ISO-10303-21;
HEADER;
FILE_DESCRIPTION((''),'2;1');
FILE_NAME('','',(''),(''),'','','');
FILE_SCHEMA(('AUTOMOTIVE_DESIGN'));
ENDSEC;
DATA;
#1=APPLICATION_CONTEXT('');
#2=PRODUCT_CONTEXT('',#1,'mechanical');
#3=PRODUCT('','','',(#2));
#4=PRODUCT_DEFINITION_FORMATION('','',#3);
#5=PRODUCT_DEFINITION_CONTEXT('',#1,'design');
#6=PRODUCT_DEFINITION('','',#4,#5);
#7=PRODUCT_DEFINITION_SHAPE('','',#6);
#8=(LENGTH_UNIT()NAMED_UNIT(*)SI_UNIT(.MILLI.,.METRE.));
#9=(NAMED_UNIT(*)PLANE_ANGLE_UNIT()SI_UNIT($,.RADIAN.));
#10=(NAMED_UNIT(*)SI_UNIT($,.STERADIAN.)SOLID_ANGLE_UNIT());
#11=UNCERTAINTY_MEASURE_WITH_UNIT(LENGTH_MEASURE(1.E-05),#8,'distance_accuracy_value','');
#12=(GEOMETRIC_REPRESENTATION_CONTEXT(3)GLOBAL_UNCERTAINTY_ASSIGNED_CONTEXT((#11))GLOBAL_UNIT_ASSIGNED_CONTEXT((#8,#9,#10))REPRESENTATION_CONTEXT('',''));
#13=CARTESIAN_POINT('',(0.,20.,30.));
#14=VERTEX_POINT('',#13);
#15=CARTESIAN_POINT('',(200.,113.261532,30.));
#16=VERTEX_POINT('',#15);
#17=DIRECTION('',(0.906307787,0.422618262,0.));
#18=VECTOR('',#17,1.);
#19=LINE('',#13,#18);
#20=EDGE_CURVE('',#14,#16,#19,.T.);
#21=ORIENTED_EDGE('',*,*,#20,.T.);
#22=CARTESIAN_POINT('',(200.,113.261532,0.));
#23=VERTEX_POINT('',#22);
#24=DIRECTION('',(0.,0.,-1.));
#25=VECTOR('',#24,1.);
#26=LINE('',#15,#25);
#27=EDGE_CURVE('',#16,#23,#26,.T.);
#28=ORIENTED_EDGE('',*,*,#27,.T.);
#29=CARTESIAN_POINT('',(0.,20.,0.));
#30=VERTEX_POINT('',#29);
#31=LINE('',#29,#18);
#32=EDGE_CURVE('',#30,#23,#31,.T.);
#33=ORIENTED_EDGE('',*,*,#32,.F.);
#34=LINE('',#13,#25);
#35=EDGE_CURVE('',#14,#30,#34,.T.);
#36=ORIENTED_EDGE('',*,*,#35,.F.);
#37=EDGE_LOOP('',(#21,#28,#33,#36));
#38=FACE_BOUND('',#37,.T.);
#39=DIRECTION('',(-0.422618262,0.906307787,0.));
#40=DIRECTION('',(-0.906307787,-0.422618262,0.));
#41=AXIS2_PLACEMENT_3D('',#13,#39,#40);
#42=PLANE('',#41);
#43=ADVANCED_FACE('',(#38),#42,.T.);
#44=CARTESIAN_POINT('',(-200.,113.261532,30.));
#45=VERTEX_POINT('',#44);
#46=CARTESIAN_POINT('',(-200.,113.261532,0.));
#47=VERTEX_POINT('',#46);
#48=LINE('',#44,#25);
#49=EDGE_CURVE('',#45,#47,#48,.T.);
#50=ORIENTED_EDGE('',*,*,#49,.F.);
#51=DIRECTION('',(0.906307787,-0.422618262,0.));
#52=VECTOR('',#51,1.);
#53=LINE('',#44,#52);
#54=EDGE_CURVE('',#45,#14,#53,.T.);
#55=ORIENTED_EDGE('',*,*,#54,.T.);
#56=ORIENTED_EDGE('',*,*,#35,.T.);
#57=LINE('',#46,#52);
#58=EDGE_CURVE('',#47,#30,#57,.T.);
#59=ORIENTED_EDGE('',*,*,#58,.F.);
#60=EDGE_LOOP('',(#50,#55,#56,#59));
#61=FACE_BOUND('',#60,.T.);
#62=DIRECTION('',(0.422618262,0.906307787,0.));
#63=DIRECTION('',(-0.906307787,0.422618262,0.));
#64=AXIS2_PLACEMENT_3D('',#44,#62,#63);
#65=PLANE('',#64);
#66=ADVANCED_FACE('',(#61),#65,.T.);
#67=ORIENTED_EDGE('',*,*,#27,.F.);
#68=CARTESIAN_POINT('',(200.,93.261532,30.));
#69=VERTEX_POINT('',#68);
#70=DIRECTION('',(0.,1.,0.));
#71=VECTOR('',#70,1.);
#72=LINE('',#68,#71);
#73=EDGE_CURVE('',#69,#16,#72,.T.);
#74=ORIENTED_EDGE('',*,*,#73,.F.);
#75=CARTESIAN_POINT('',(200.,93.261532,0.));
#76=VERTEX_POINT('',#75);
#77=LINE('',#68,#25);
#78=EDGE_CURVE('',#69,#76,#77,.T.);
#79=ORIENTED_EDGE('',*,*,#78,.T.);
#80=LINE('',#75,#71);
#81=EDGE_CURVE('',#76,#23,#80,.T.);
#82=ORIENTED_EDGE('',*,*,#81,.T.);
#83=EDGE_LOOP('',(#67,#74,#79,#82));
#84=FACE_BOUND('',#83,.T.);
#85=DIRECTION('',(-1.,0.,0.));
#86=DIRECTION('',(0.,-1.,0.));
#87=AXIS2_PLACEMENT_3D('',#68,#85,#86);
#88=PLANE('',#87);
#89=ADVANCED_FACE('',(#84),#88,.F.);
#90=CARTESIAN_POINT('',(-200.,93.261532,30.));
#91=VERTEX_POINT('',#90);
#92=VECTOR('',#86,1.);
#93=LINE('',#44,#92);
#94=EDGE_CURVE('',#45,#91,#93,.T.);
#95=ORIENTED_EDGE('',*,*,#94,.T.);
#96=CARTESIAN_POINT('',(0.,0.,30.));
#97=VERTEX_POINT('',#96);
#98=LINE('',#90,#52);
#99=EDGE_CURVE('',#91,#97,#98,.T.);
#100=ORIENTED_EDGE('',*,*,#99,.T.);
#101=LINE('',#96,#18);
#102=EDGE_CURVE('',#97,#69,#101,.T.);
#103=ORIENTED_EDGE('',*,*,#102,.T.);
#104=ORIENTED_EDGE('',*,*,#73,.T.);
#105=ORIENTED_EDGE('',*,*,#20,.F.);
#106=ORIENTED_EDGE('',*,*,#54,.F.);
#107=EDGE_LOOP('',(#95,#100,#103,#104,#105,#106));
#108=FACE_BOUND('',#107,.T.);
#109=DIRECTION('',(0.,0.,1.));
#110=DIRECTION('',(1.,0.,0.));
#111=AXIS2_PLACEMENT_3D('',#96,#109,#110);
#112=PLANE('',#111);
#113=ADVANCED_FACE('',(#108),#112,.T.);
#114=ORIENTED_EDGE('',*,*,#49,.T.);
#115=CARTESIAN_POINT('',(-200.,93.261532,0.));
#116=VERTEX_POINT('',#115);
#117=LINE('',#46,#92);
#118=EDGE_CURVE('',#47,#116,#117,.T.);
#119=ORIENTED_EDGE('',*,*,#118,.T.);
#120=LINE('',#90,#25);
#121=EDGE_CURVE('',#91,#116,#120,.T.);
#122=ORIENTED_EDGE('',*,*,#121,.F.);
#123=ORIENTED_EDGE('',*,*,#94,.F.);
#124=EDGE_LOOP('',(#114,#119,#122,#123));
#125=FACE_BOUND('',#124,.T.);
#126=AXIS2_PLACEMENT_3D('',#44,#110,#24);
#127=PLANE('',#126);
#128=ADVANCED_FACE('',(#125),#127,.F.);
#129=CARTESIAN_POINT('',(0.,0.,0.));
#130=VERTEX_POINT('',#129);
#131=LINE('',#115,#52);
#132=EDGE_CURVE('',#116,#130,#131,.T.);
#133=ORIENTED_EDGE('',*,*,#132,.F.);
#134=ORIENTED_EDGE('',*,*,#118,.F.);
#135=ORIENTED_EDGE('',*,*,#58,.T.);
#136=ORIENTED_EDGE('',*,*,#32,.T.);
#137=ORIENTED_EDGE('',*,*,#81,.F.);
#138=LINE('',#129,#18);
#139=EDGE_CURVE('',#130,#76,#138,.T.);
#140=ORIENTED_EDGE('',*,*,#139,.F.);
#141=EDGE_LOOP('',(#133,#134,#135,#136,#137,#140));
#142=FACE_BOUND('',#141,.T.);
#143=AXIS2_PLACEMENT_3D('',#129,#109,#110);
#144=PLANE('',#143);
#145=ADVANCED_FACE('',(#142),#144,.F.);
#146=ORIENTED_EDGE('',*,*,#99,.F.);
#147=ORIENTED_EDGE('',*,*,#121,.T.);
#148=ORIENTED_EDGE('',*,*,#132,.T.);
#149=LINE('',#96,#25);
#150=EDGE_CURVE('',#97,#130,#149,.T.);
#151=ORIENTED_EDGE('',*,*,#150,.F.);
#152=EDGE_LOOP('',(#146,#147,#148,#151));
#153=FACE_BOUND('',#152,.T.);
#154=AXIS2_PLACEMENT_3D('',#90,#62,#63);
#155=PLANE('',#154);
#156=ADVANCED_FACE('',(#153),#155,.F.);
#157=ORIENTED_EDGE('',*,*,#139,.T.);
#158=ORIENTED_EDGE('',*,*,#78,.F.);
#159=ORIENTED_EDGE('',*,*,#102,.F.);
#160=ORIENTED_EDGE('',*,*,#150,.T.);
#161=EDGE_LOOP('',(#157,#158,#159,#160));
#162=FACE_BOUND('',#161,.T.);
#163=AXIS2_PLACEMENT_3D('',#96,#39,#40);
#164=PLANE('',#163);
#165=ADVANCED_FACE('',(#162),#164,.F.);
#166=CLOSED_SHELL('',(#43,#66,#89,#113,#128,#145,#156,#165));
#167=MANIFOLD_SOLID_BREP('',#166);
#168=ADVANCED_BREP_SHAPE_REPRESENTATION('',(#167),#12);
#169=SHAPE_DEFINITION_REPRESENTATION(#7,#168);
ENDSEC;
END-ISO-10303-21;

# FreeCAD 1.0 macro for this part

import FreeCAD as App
import Part
import Sketcher
Q = App.Units.Quantity

doc = App.newDocument("Part")
params = doc.addObject("Spreadsheet::Sheet", "Params")
for row, (alias, value) in enumerate([
    ("sketch1_height", "20 mm"),
    ("pad1_length", "30 mm"),
], start=1):
    params.set(f"A{row}", alias)
    params.set(f"B{row}", "=" + value)
    params.setAlias(f"B{row}", alias)

body = doc.addObject("PartDesign::Body", "Body")

# Sketch on XY plane
sketch1 = doc.addObject("Sketcher::SketchObject", "Sketch")
body.addObject(sketch1)
sketch1.AttachmentSupport = (doc.XY_Plane, [""])
sketch1.MapMode = "FlatFace"
sketch1.addGeometry([
    Part.LineSegment(App.Vector(0, 20, 0), App.Vector(-200, 113, 0)),  # 0
    Part.LineSegment(App.Vector(-200, 113, 0), App.Vector(-200, 93, 0)),  # 1
    Part.LineSegment(App.Vector(-200, 93, 0), App.Vector(0, 0, 0)),  # 2
    Part.LineSegment(App.Vector(0, 0, 0), App.Vector(200, 93, 0)),  # 3
    Part.LineSegment(App.Vector(200, 93, 0), App.Vector(200, 113, 0)),  # 4
    Part.LineSegment(App.Vector(200, 113, 0), App.Vector(0, 20, 0)),  # 5
], False)
sketch1.addConstraint([
    Sketcher.Constraint("Coincident", 0, 2, 1, 1),
    Sketcher.Constraint("Coincident", 1, 2, 2, 1),
    Sketcher.Constraint("Coincident", 2, 2, 3, 1),
    Sketcher.Constraint("Coincident", 3, 2, 4, 1),
    Sketcher.Constraint("Coincident", 4, 2, 5, 1),
    Sketcher.Constraint("Coincident", 5, 2, 0, 1),
    Sketcher.Constraint("Vertical", 1),
    Sketcher.Constraint("Vertical", 4),
    Sketcher.Constraint("Coincident", 2, 2, -1, 1),
    Sketcher.Constraint("Symmetric", 1, 2, 3, 2, -2),
    Sketcher.Constraint("PointOnObject", 5, 2, -2),
    Sketcher.Constraint("Parallel", 0, 2),
    Sketcher.Constraint("Parallel", 3, 5),
    Sketcher.Constraint("DistanceY", 1, 2, 1, 1, Q("20 mm")),
    Sketcher.Constraint("Angle", 0, Q("155 deg")),
    Sketcher.Constraint("DistanceX", 0, 2, -1, 1, Q("200 mm")),
])
sketch1.setExpression("Constraints[13]", "Params.sketch1_height")
pad1 = doc.addObject("PartDesign::Pad", "Pad")
body.addObject(pad1)
pad1.Profile = sketch1
pad1.setExpression("Length", "Params.pad1_length")

doc.recompute()
